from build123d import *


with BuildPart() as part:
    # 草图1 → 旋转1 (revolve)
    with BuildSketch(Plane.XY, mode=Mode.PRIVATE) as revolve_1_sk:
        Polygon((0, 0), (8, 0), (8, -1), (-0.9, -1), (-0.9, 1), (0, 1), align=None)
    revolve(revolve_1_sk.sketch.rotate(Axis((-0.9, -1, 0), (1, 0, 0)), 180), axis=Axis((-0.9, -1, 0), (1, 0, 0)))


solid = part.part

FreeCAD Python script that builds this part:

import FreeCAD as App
import Part
import Sketcher

V = App.Vector

doc = App.newDocument("Part")
body = doc.addObject("PartDesign::Body", "Body")

sketch1 = body.newObject("Sketcher::SketchObject", "Sketch")
sketch1.AttachmentSupport = (doc.getObject("XY_Plane"), [""])
sketch1.MapMode = "FlatFace"
sketch1.addGeometry(Part.LineSegment(V(8, 0, 0), V(0, 0, 0)), False)
sketch1.addGeometry(Part.LineSegment(V(0, 0, 0), V(0, 1, 0)), False)
sketch1.addGeometry(Part.LineSegment(V(0, 1, 0), V(-0.9, 1, 0)), False)
sketch1.addGeometry(Part.LineSegment(V(-0.9, 1, 0), V(-0.9, -1, 0)), False)
sketch1.addGeometry(Part.LineSegment(V(-0.9, -1, 0), V(8, -1, 0)), False)
sketch1.addGeometry(Part.LineSegment(V(8, -1, 0), V(8, 0, 0)), False)
sketch1.addGeometry(Part.LineSegment(V(-0.9, -1, 0), V(8, -1, 0)), True)
sketch1.addConstraint(Sketcher.Constraint("Coincident", 0, 2, 1, 1))
sketch1.addConstraint(Sketcher.Constraint("Coincident", 1, 2, 2, 1))
sketch1.addConstraint(Sketcher.Constraint("Coincident", 2, 2, 3, 1))
sketch1.addConstraint(Sketcher.Constraint("Coincident", 3, 2, 4, 1))
sketch1.addConstraint(Sketcher.Constraint("Coincident", 4, 2, 5, 1))
sketch1.addConstraint(Sketcher.Constraint("Coincident", 5, 2, 0, 1))
sketch1.addConstraint(Sketcher.Constraint("Horizontal", 0))
sketch1.addConstraint(Sketcher.Constraint("Vertical", 1))
sketch1.addConstraint(Sketcher.Constraint("Horizontal", 2))
sketch1.addConstraint(Sketcher.Constraint("Vertical", 3))
sketch1.addConstraint(Sketcher.Constraint("Horizontal", 4))
sketch1.addConstraint(Sketcher.Constraint("Vertical", 5))
sketch1.addConstraint(Sketcher.Constraint("Horizontal", 6))
sketch1.addConstraint(Sketcher.Constraint("Coincident", 0, 2, -1, 1))
sketch1.addConstraint(Sketcher.Constraint("Coincident", 6, 1, 3, 2))
sketch1.addConstraint(Sketcher.Constraint("Vertical", 5, 2, 6, 2))
sketch1.addConstraint(Sketcher.Constraint("Equal", 1, 5))
sketch1.addConstraint(Sketcher.Constraint("DistanceX", 0, 2, 0, 1, 8.0))
sketch1.addConstraint(Sketcher.Constraint("DistanceY", 1, 1, 1, 2, 1.0))
sketch1.addConstraint(Sketcher.Constraint("DistanceX", 2, 2, 2, 1, 0.9))
revolution = body.newObject("PartDesign::Revolution", "Revolution")
revolution.Profile = sketch1
revolution.ReferenceAxis = (sketch1, ["Axis0"])
revolution.Angle = 360

doc.recompute()
